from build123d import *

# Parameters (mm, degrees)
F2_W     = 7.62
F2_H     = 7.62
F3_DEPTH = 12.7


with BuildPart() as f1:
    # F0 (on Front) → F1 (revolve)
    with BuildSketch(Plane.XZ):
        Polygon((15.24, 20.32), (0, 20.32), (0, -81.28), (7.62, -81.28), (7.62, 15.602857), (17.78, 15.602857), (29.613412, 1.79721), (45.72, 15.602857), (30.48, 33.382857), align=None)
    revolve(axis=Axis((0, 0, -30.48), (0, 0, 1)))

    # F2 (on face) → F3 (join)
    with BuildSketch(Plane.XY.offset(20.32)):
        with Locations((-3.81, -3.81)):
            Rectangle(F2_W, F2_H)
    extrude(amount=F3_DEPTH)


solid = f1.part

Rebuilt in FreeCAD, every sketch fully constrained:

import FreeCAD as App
import Part
import Sketcher
Q = App.Units.Quantity

doc = App.newDocument("Part")
body = doc.addObject("PartDesign::Body", "Body")

sketch1 = doc.addObject("Sketcher::SketchObject", "Sketch")
body.addObject(sketch1)
sketch1.AttachmentSupport = (doc.XZ_Plane, [""])
sketch1.MapMode = "FlatFace"
sketch1.addGeometry(Part.LineSegment(App.Vector(15, 20, 0), App.Vector(0, 20, 0)), False)
sketch1.addGeometry(Part.LineSegment(App.Vector(0, 20, 0), App.Vector(0, -81, 0)), False)
sketch1.addGeometry(Part.LineSegment(App.Vector(0, -81, 0), App.Vector(8, -81, 0)), False)
sketch1.addGeometry(Part.LineSegment(App.Vector(8, -81, 0), App.Vector(8, 16, 0)), False)
sketch1.addGeometry(Part.LineSegment(App.Vector(8, 16, 0), App.Vector(18, 16, 0)), False)
sketch1.addGeometry(Part.LineSegment(App.Vector(18, 16, 0), App.Vector(30, 2, 0)), False)
sketch1.addGeometry(Part.LineSegment(App.Vector(30, 2, 0), App.Vector(46, 16, 0)), False)
sketch1.addGeometry(Part.LineSegment(App.Vector(46, 16, 0), App.Vector(30, 33, 0)), False)
sketch1.addGeometry(Part.LineSegment(App.Vector(30, 33, 0), App.Vector(15, 20, 0)), False)
sketch1.addConstraint(Sketcher.Constraint("Coincident", 0, 2, 1, 1))
sketch1.addConstraint(Sketcher.Constraint("Coincident", 1, 2, 2, 1))
sketch1.addConstraint(Sketcher.Constraint("Coincident", 2, 2, 3, 1))
sketch1.addConstraint(Sketcher.Constraint("Coincident", 3, 2, 4, 1))
sketch1.addConstraint(Sketcher.Constraint("Coincident", 4, 2, 5, 1))
sketch1.addConstraint(Sketcher.Constraint("Coincident", 5, 2, 6, 1))
sketch1.addConstraint(Sketcher.Constraint("Coincident", 6, 2, 7, 1))
sketch1.addConstraint(Sketcher.Constraint("Coincident", 7, 2, 8, 1))
sketch1.addConstraint(Sketcher.Constraint("Coincident", 8, 2, 0, 1))
sketch1.addConstraint(Sketcher.Constraint("Horizontal", 0))
sketch1.addConstraint(Sketcher.Constraint("Vertical", 1))
sketch1.addConstraint(Sketcher.Constraint("Horizontal", 2))
sketch1.addConstraint(Sketcher.Constraint("Vertical", 3))
sketch1.addConstraint(Sketcher.Constraint("Horizontal", 4))
sketch1.addConstraint(Sketcher.Constraint("PointOnObject", 0, 2, -2))
sketch1.addConstraint(Sketcher.Constraint("Perpendicular", 5, 6))
sketch1.addConstraint(Sketcher.Constraint("Perpendicular", 6, 7))
sketch1.addConstraint(Sketcher.Constraint("Perpendicular", 7, 8))
sketch1.addConstraint(Sketcher.Constraint("Horizontal", 4, 2, 6, 2))
sketch1.addConstraint(Sketcher.Constraint("DistanceY", 1, 2, 1, 1, Q("4 in")))
sketch1.addConstraint(Sketcher.Constraint("DistanceX", 0, 2, 0, 1, Q("0.6 in")))
sketch1.addConstraint(Sketcher.Constraint("DistanceX", 2, 1, 2, 2, Q("0.3 in")))
sketch1.addConstraint(Sketcher.Constraint("DistanceX", 4, 1, 4, 2, Q("0.4 in")))
sketch1.addConstraint(Sketcher.Constraint("DistanceY", -1, 1, 0, 2, Q("0.8 in")))
sketch1.addConstraint(Sketcher.Constraint("DistanceX", -1, 1, 6, 2, Q("1.8 in")))
sketch1.addConstraint(Sketcher.Constraint("DistanceX", -1, 1, 7, 2, Q("1.2 in")))
sketch1.addConstraint(Sketcher.Constraint("DistanceY", 4, 2, 7, 2, Q("0.7 in")))
revolution = doc.addObject("PartDesign::Revolution", "Revolution")
body.addObject(revolution)
revolution.Profile = sketch1
revolution.ReferenceAxis = (sketch1, ["V_Axis"])
revolution.Angle = 360

sketch2 = doc.addObject("Sketcher::SketchObject", "Sketch001")
body.addObject(sketch2)
sketch2.AttachmentSupport = (doc.XY_Plane, [""])
sketch2.MapMode = "FlatFace"
sketch2.AttachmentOffset = App.Placement(App.Vector(0, 0, 0.8 * 25.4), App.Rotation())
sketch2.addGeometry(Part.LineSegment(App.Vector(-8, 0, 0), App.Vector(-8, -8, 0)), False)
sketch2.addGeometry(Part.LineSegment(App.Vector(-8, -8, 0), App.Vector(0, -8, 0)), False)
sketch2.addGeometry(Part.LineSegment(App.Vector(0, -8, 0), App.Vector(0, 0, 0)), False)
sketch2.addGeometry(Part.LineSegment(App.Vector(0, 0, 0), App.Vector(-8, 0, 0)), False)
sketch2.addConstraint(Sketcher.Constraint("Coincident", 0, 2, 1, 1))
sketch2.addConstraint(Sketcher.Constraint("Coincident", 1, 2, 2, 1))
sketch2.addConstraint(Sketcher.Constraint("Coincident", 2, 2, 3, 1))
sketch2.addConstraint(Sketcher.Constraint("Coincident", 3, 2, 0, 1))
sketch2.addConstraint(Sketcher.Constraint("Vertical", 0))
sketch2.addConstraint(Sketcher.Constraint("Horizontal", 1))
sketch2.addConstraint(Sketcher.Constraint("Vertical", 2))
sketch2.addConstraint(Sketcher.Constraint("Horizontal", 3))
sketch2.addConstraint(Sketcher.Constraint("Coincident", 2, 2, -1, 1))
sketch2.addConstraint(Sketcher.Constraint("Equal", 3, 0))
sketch2.addConstraint(Sketcher.Constraint("DistanceX", 1, 1, 1, 2, Q("0.3 in")))
pad1 = doc.addObject("PartDesign::Pad", "Pad")
body.addObject(pad1)
pad1.Profile = sketch2
pad1.Length = Q("0.5 in")

doc.recompute()
